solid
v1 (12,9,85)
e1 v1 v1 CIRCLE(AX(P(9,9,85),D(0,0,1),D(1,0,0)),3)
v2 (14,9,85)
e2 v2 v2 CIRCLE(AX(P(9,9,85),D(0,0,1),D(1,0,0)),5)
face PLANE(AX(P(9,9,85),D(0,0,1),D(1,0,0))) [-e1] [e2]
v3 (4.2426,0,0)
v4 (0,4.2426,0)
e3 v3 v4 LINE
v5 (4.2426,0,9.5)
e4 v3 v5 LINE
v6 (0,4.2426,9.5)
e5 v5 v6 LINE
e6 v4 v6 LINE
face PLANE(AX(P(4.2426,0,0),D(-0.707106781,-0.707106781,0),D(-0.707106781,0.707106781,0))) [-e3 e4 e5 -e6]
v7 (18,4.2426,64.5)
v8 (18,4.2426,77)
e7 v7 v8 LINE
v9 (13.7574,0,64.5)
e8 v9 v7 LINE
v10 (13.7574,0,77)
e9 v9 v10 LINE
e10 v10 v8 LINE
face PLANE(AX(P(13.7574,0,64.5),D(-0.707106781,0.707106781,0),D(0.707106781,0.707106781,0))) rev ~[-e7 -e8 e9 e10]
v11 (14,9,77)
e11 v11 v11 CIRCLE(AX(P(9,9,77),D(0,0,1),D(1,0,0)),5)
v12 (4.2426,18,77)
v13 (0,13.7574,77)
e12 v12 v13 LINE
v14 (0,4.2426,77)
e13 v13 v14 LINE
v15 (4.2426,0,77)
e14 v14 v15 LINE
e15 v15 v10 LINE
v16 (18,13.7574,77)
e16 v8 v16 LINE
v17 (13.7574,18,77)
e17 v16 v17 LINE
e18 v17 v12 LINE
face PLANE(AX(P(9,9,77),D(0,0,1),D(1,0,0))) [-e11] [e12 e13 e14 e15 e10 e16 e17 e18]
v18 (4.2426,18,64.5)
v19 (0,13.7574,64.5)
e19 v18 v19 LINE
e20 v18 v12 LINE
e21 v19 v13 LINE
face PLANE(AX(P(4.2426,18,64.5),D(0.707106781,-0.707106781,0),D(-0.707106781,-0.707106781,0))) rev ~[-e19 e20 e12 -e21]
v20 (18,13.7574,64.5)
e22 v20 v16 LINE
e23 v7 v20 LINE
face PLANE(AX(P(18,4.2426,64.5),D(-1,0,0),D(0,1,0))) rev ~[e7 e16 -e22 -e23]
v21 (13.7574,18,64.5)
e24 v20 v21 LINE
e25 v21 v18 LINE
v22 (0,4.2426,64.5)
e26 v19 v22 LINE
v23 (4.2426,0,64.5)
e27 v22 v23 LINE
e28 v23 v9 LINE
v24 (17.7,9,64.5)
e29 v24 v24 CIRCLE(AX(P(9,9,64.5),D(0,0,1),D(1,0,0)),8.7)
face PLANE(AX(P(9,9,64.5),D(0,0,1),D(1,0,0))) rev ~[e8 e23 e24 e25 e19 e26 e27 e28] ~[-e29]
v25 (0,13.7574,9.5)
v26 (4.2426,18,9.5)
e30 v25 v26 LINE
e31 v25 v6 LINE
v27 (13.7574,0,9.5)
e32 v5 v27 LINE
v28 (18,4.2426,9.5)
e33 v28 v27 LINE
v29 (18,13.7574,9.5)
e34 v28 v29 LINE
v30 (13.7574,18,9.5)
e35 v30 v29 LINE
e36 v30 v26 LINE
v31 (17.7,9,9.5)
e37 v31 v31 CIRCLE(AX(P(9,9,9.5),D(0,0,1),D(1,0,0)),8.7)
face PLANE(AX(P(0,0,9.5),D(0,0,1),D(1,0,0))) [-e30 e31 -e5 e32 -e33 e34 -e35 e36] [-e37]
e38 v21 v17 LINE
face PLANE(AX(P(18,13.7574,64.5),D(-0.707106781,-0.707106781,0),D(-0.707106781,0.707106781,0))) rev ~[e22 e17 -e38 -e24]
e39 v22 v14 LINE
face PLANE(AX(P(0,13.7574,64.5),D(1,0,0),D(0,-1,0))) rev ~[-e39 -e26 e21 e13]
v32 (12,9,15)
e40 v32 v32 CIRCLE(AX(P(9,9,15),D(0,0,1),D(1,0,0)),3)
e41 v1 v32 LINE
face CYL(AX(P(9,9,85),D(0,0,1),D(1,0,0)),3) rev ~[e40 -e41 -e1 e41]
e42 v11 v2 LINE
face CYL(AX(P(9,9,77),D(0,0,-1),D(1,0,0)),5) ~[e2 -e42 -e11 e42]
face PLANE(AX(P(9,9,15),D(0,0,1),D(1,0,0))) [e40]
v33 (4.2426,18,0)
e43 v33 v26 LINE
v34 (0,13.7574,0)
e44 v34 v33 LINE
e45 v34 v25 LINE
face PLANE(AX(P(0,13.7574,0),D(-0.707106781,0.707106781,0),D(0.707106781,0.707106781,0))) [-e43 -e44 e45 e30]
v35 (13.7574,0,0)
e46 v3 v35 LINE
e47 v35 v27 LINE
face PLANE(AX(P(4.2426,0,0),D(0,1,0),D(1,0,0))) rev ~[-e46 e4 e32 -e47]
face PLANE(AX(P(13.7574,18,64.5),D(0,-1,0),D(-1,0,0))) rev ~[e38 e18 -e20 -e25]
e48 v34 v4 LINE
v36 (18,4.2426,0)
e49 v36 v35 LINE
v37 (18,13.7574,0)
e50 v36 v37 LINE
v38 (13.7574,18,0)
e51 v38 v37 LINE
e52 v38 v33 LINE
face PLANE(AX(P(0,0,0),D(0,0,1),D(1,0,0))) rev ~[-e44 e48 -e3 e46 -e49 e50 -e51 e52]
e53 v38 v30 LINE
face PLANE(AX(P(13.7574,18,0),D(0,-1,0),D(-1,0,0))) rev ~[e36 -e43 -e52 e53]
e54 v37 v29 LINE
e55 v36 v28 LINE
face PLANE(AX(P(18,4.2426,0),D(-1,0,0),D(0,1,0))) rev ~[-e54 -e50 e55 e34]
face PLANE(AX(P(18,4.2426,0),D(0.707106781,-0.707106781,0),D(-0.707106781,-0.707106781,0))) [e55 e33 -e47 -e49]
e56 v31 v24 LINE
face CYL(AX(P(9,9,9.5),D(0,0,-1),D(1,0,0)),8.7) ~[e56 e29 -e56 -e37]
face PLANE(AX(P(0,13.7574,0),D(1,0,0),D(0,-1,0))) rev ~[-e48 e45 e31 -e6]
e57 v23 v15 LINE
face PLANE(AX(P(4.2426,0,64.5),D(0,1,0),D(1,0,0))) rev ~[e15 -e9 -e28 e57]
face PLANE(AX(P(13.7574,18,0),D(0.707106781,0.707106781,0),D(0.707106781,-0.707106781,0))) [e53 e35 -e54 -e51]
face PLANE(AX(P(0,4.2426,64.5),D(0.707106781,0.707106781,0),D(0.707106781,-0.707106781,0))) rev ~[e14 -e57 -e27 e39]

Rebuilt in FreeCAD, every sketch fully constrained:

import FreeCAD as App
import Part
import Sketcher

V = App.Vector


def add_polygon(sketch, points):
    """Adds a closed chain of lines whose ends are joined by coincident constraints."""
    first, n = sketch.GeometryCount, len(points)
    for a, b in zip(points, points[1:] + points[:1]):
        sketch.addGeometry(Part.LineSegment(App.Vector(*a, 0), App.Vector(*b, 0)), False)
    for i in range(n):
        sketch.addConstraint(Sketcher.Constraint("Coincident", first + i, 2, first + (i + 1) % n, 1))

doc = App.newDocument("Part")
body = doc.addObject("PartDesign::Body", "Body")

# Sketch on XY plane
sketch1 = doc.addObject("Sketcher::SketchObject", "Sketch")
body.addObject(sketch1)
sketch1.AttachmentSupport = (doc.XY_Plane, [""])
sketch1.MapMode = "FlatFace"
add_polygon(sketch1, [(0, 4), (4, 0), (14, 0), (18, 4), (18, 14), (14, 18), (4, 18), (0, 14)])  # lines 0-7
sketch1.addConstraint(Sketcher.Constraint("Horizontal", 1))
sketch1.addConstraint(Sketcher.Constraint("Vertical", 3))
sketch1.addConstraint(Sketcher.Constraint("Horizontal", 5))
sketch1.addConstraint(Sketcher.Constraint("Vertical", 7))
sketch1.addConstraint(Sketcher.Constraint("PointOnObject", 0, 2, -1))
sketch1.addConstraint(Sketcher.Constraint("PointOnObject", 6, 2, -2))
sketch1.addConstraint(Sketcher.Constraint("Perpendicular", 0, 2))
sketch1.addConstraint(Sketcher.Constraint("Perpendicular", 2, 4))
sketch1.addConstraint(Sketcher.Constraint("Perpendicular", 4, 6))
sketch1.addConstraint(Sketcher.Constraint("Horizontal", 3, 2, 6, 2))
sketch1.addConstraint(Sketcher.Constraint("Horizontal", 2, 2, 7, 2))
sketch1.addConstraint(Sketcher.Constraint("Vertical", 1, 2, 4, 2))
sketch1.addConstraint(Sketcher.Constraint("Vertical", 0, 2, 5, 2))
sketch1.addConstraint(Sketcher.Constraint("Equal", 5, 3))
sketch1.addConstraint(Sketcher.Constraint("DistanceX", -1, 1, 2, 2, 18.0))
sketch1.addConstraint(Sketcher.Constraint("Distance", 0, 6.0))
pad1 = doc.addObject("PartDesign::Pad", "Pad")
body.addObject(pad1)
pad1.Profile = sketch1
pad1.Length = 9.5

# Sketch on XY plane
sketch2 = doc.addObject("Sketcher::SketchObject", "Sketch001")
body.addObject(sketch2)
sketch2.AttachmentSupport = (doc.XY_Plane, [""])
sketch2.MapMode = "FlatFace"
sketch2.AttachmentOffset = App.Placement(V(0, 0, 9.5), App.Rotation())
sketch2.addGeometry(Part.Circle(V(9, 9, 0), V(0, 0, 1), 9), False)
sketch2.addConstraint(Sketcher.Constraint("Diameter", 0, 17.4))
sketch2.addConstraint(Sketcher.Constraint("DistanceX", -1, 1, 0, 3, 9.0))
sketch2.addConstraint(Sketcher.Constraint("DistanceY", -1, 1, 0, 3, 9.0))
pad2 = doc.addObject("PartDesign::Pad", "Pad001")
body.addObject(pad2)
pad2.Profile = sketch2
pad2.Length = 55

# Sketch on XY plane
sketch3 = doc.addObject("Sketcher::SketchObject", "Sketch002")
body.addObject(sketch3)
sketch3.AttachmentSupport = (doc.XY_Plane, [""])
sketch3.MapMode = "FlatFace"
sketch3.AttachmentOffset = App.Placement(V(0, 0, 64.5), App.Rotation())
add_polygon(sketch3, [(18, 14), (14, 18), (4, 18), (0, 14), (0, 4), (4, 0), (14, 0), (18, 4)])  # lines 0-7
sketch3.addConstraint(Sketcher.Constraint("Horizontal", 1))
sketch3.addConstraint(Sketcher.Constraint("Vertical", 3))
sketch3.addConstraint(Sketcher.Constraint("Horizontal", 5))
sketch3.addConstraint(Sketcher.Constraint("Vertical", 7))
sketch3.addConstraint(Sketcher.Constraint("PointOnObject", 2, 2, -2))
sketch3.addConstraint(Sketcher.Constraint("PointOnObject", 4, 2, -1))
sketch3.addConstraint(Sketcher.Constraint("Perpendicular", 0, 2))
sketch3.addConstraint(Sketcher.Constraint("Perpendicular", 2, 4))
sketch3.addConstraint(Sketcher.Constraint("Perpendicular", 4, 6))
sketch3.addConstraint(Sketcher.Constraint("Horizontal", 3, 2, 6, 2))
sketch3.addConstraint(Sketcher.Constraint("Horizontal", 2, 2, 7, 2))
sketch3.addConstraint(Sketcher.Constraint("Vertical", 1, 2, 4, 2))
sketch3.addConstraint(Sketcher.Constraint("Vertical", 0, 2, 5, 2))
sketch3.addConstraint(Sketcher.Constraint("Equal", 5, 3))
sketch3.addConstraint(Sketcher.Constraint("Distance", 0, 6.0))
sketch3.addConstraint(Sketcher.Constraint("DistanceY", -1, 1, 0, 2, 18.0))
pad3 = doc.addObject("PartDesign::Pad", "Pad002")
body.addObject(pad3)
pad3.Profile = sketch3
pad3.Length = 12.5

# Sketch on XY plane
sketch4 = doc.addObject("Sketcher::SketchObject", "Sketch003")
body.addObject(sketch4)
sketch4.AttachmentSupport = (doc.XY_Plane, [""])
sketch4.MapMode = "FlatFace"
sketch4.AttachmentOffset = App.Placement(V(0, 0, 77), App.Rotation())
sketch4.addGeometry(Part.Circle(V(9, 9, 0), V(0, 0, 1), 5), False)
sketch4.addConstraint(Sketcher.Constraint("Diameter", 0, 10.0))
sketch4.addConstraint(Sketcher.Constraint("DistanceX", -1, 1, 0, 3, 9.0))
sketch4.addConstraint(Sketcher.Constraint("DistanceY", -1, 1, 0, 3, 9.0))
pad4 = doc.addObject("PartDesign::Pad", "Pad003")
body.addObject(pad4)
pad4.Profile = sketch4
pad4.Length = 8

# Sketch on XY plane
sketch5 = doc.addObject("Sketcher::SketchObject", "Sketch004")
body.addObject(sketch5)
sketch5.AttachmentSupport = (doc.XY_Plane, [""])
sketch5.MapMode = "FlatFace"
sketch5.AttachmentOffset = App.Placement(V(0, 0, 85), App.Rotation())
sketch5.addGeometry(Part.Circle(V(9, 9, 0), V(0, 0, 1), 3), False)
sketch5.addConstraint(Sketcher.Constraint("Diameter", 0, 6.0))
sketch5.addConstraint(Sketcher.Constraint("DistanceX", -1, 1, 0, 3, 9.0))
sketch5.addConstraint(Sketcher.Constraint("DistanceY", -1, 1, 0, 3, 9.0))
pocket1 = doc.addObject("PartDesign::Pocket", "Pocket")
body.addObject(pocket1)
pocket1.Profile = sketch5
pocket1.Length = 70

doc.recompute()
